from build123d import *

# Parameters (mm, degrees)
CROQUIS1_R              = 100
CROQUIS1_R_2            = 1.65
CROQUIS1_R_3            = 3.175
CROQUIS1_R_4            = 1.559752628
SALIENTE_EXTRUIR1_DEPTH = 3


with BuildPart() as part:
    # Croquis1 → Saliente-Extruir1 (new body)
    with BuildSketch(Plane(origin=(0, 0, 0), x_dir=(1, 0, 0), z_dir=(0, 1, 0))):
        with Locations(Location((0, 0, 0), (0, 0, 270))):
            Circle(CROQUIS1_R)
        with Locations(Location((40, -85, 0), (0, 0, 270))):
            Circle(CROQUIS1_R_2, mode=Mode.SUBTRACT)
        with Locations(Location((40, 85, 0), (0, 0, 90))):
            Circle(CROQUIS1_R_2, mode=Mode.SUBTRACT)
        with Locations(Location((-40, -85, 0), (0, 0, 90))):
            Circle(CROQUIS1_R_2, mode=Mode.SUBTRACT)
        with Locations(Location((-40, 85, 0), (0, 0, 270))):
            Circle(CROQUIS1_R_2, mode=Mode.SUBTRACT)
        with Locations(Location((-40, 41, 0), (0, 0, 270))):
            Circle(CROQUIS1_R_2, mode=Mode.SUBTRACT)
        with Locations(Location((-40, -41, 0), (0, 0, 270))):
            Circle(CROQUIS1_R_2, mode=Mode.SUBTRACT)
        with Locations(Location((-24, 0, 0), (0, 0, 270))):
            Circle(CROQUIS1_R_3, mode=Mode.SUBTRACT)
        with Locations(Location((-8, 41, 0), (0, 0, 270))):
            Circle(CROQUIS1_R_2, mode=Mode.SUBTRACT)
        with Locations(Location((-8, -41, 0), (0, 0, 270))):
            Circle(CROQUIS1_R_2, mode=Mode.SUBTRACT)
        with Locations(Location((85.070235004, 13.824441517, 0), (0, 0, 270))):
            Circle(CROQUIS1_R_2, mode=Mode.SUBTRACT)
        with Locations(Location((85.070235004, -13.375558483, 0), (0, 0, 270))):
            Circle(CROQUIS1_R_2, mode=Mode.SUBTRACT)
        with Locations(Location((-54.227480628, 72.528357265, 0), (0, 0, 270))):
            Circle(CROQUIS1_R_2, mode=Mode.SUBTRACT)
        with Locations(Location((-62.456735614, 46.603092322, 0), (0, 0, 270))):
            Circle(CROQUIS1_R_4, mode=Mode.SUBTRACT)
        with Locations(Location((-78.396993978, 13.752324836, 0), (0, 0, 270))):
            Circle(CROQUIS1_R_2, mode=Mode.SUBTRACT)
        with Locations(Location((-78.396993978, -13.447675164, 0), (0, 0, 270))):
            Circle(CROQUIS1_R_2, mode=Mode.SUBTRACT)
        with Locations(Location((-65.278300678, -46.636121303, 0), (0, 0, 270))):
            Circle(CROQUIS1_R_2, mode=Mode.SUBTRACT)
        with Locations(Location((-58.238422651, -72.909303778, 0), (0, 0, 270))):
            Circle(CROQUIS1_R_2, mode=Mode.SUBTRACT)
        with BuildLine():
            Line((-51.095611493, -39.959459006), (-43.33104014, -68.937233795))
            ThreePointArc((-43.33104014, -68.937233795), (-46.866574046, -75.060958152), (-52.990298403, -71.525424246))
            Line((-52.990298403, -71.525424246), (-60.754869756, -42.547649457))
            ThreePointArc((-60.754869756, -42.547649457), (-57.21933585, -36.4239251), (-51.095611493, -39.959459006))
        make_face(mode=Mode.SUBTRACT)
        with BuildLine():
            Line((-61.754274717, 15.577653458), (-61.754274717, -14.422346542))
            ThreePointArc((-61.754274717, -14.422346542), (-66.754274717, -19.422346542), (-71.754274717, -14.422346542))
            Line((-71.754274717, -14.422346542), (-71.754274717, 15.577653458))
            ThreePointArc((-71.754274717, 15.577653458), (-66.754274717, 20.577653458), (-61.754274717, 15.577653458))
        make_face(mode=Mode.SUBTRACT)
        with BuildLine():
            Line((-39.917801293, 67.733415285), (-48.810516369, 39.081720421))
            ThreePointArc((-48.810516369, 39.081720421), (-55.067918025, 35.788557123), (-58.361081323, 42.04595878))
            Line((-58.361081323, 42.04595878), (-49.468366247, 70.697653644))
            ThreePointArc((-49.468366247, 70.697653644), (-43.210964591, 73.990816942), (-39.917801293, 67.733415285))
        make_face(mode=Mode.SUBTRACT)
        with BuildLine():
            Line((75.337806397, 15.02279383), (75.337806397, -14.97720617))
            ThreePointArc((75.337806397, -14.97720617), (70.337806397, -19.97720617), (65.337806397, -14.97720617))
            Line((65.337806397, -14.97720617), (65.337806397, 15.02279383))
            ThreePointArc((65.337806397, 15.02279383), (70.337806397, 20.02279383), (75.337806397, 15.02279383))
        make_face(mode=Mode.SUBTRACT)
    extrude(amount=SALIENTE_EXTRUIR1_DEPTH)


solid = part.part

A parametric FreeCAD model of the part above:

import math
import FreeCAD as App
import Part
import Sketcher
from FreeCAD import Vector
Q = App.Units.Quantity

doc = App.newDocument("Part")
body = doc.addObject("PartDesign::Body", "Body")

sketch1 = body.newObject("Sketcher::SketchObject", "Sketch")
sketch1.AttachmentSupport = (doc.getObject("XZ_Plane"), [""])
sketch1.MapMode = "FlatFace"
sketch1.addGeometry([
    Part.Circle(Vector(0, 0, 0), Vector(0, 0, 1), 100),
    Part.Circle(Vector(-62.5, -46.6, 0), Vector(0, 0, 1), 1.6),
    Part.Circle(Vector(-54.2, -72.5, 0), Vector(0, 0, 1), 1.6),
    Part.Circle(Vector(-40, -85, 0), Vector(0, 0, 1), 1.6),
    Part.ArcOfCircle(Part.Circle(Vector(-44.7, -69.2, 0), Vector(0, 0, 1), 5), math.radians(-163), math.radians(17)),
    Part.LineSegment(Vector(-39.9, -67.7, 0), Vector(-48.8, -39.1, 0)),
    Part.ArcOfCircle(Part.Circle(Vector(-53.6, -40.6, 0), Vector(0, 0, 1), 5), math.radians(17), math.radians(197)),
    Part.LineSegment(Vector(-58.4, -42, 0), Vector(-49.5, -70.7, 0)),
    Part.Circle(Vector(-78.4, -13.8, 0), Vector(0, 0, 1), 1.6),
    Part.ArcOfCircle(Part.Circle(Vector(-66.8, -15.6, 0), Vector(0, 0, 1), 5), math.radians(180), math.radians(360)),
    Part.LineSegment(Vector(-61.8, -15.6, 0), Vector(-61.8, 14.4, 0)),
    Part.ArcOfCircle(Part.Circle(Vector(-66.8, 14.4, 0), Vector(0, 0, 1), 5), math.radians(0), math.radians(180)),
    Part.LineSegment(Vector(-71.8, 14.4, 0), Vector(-71.8, -15.6, 0)),
    Part.Circle(Vector(-40, -41, 0), Vector(0, 0, 1), 1.6),
    Part.Circle(Vector(-8, -41, 0), Vector(0, 0, 1), 1.6),
    Part.Circle(Vector(-78.4, 13.4, 0), Vector(0, 0, 1), 1.6),
    Part.Circle(Vector(-40, 41, 0), Vector(0, 0, 1), 1.6),
    Part.Circle(Vector(-65.3, 46.6, 0), Vector(0, 0, 1), 1.6),
    Part.ArcOfCircle(Part.Circle(Vector(-55.9, 41.3, 0), Vector(0, 0, 1), 5), math.radians(165), math.radians(345)),
    Part.LineSegment(Vector(-51.1, 40, 0), Vector(-43.3, 68.9, 0)),
    Part.ArcOfCircle(Part.Circle(Vector(-48.2, 70.2, 0), Vector(0, 0, 1), 5), math.radians(-15), math.radians(165)),
    Part.LineSegment(Vector(-53, 71.5, 0), Vector(-60.8, 42.5, 0)),
    Part.Circle(Vector(-58.2, 72.9, 0), Vector(0, 0, 1), 1.6),
    Part.Circle(Vector(-40, 85, 0), Vector(0, 0, 1), 1.6),
    Part.Circle(Vector(-24, 0, 0), Vector(0, 0, 1), 3.2),
    Part.Circle(Vector(-8, 41, 0), Vector(0, 0, 1), 1.6),
    Part.Circle(Vector(40, -85, 0), Vector(0, 0, 1), 1.6),
    Part.ArcOfCircle(Part.Circle(Vector(70.3, -15, 0), Vector(0, 0, 1), 5), math.radians(180), math.radians(360)),
    Part.LineSegment(Vector(75.3, -15, 0), Vector(75.3, 15, 0)),
    Part.ArcOfCircle(Part.Circle(Vector(70.3, 15, 0), Vector(0, 0, 1), 5), math.radians(0), math.radians(180)),
    Part.LineSegment(Vector(65.3, 15, 0), Vector(65.3, -15, 0)),
    Part.Circle(Vector(85.1, -13.8, 0), Vector(0, 0, 1), 1.6),
    Part.Circle(Vector(40, 85, 0), Vector(0, 0, 1), 1.6),
    Part.Circle(Vector(85.1, 13.4, 0), Vector(0, 0, 1), 1.6),
], False)
sketch1.addConstraint([
    Sketcher.Constraint("Tangent", 4, 2, 5, 1),
    Sketcher.Constraint("Tangent", 5, 2, 6, 1),
    Sketcher.Constraint("Tangent", 6, 2, 7, 1),
    Sketcher.Constraint("Tangent", 7, 2, 4, 1),
    Sketcher.Constraint("Tangent", 9, 2, 10, 1),
    Sketcher.Constraint("Tangent", 10, 2, 11, 1),
    Sketcher.Constraint("Tangent", 11, 2, 12, 1),
    Sketcher.Constraint("Tangent", 12, 2, 9, 1),
    Sketcher.Constraint("Tangent", 18, 2, 19, 1),
    Sketcher.Constraint("Tangent", 19, 2, 20, 1),
    Sketcher.Constraint("Tangent", 20, 2, 21, 1),
    Sketcher.Constraint("Tangent", 21, 2, 18, 1),
    Sketcher.Constraint("Tangent", 27, 2, 28, 1),
    Sketcher.Constraint("Tangent", 28, 2, 29, 1),
    Sketcher.Constraint("Tangent", 29, 2, 30, 1),
    Sketcher.Constraint("Tangent", 30, 2, 27, 1),
    Sketcher.Constraint("Vertical", 10),
    Sketcher.Constraint("Vertical", 12),
    Sketcher.Constraint("Vertical", 28),
    Sketcher.Constraint("Vertical", 30),
    Sketcher.Constraint("Coincident", 0, 3, -1, 1),
    Sketcher.Constraint("Equal", 2, 3),
    Sketcher.Constraint("Equal", 4, 6),
    Sketcher.Constraint("Equal", 3, 8),
    Sketcher.Constraint("Equal", 6, 9),
    Sketcher.Constraint("Equal", 8, 13),
    Sketcher.Constraint("Equal", 13, 14),
    Sketcher.Constraint("Equal", 14, 15),
    Sketcher.Constraint("Equal", 15, 16),
    Sketcher.Constraint("Equal", 16, 17),
    Sketcher.Constraint("Equal", 11, 18),
    Sketcher.Constraint("Equal", 18, 20),
    Sketcher.Constraint("Equal", 17, 22),
    Sketcher.Constraint("Equal", 22, 23),
    Sketcher.Constraint("Equal", 23, 25),
    Sketcher.Constraint("Equal", 25, 26),
    Sketcher.Constraint("Equal", 20, 27),
    Sketcher.Constraint("Equal", 26, 31),
    Sketcher.Constraint("Equal", 31, 32),
    Sketcher.Constraint("Equal", 32, 33),
    Sketcher.Constraint("Symmetric", 23, 3, 26, 3, -1, 1),
    Sketcher.Constraint("Symmetric", 3, 3, 32, 3, -1, 1),
    Sketcher.Constraint("Symmetric", 3, 3, 26, 3, -2),
    Sketcher.Constraint("Symmetric", 13, 3, 16, 3, -1),
    Sketcher.Constraint("Symmetric", 14, 3, 25, 3, -1),
    Sketcher.Constraint("PointOnObject", 24, 3, -1),
    Sketcher.Constraint("Horizontal", 13, 3, 14, 3),
    Sketcher.Constraint("Vertical", 3, 3, 13, 3),
    Sketcher.Constraint("Vertical", 8, 3, 15, 3),
    Sketcher.Constraint("Vertical", 31, 3, 33, 3),
    Sketcher.Constraint("Equal", 12, 28),
    Sketcher.Constraint("Equal", 7, 19),
    Sketcher.Constraint("Diameter", 0, Q("200 mm")),
    Sketcher.Constraint("Radius", 4, Q("5 mm")),
    Sketcher.Constraint("Diameter", 2, Q("3.3 mm")),
    Sketcher.Constraint("Diameter", 24, Q("6.35 mm")),
    Sketcher.Constraint("DistanceY", 10, 1, 10, 2, Q("30 mm")),
    Sketcher.Constraint("Angle", 19, Q("75 deg")),
    Sketcher.Constraint("Distance", 5, Q("30 mm")),
    Sketcher.Constraint("DistanceX", 3, 3, -1, 1, Q("40 mm")),
    Sketcher.Constraint("DistanceY", 3, 3, -1, 1, Q("85 mm")),
    Sketcher.Constraint("DistanceY", 13, 3, -1, 1, Q("41 mm")),
    Sketcher.Constraint("DistanceX", 14, 3, -1, 1, Q("8 mm")),
    Sketcher.Constraint("DistanceX", 24, 3, -1, 1, Q("24 mm")),
    Sketcher.Constraint("DistanceY", 8, 3, 15, 3, Q("27.2 mm")),
    Sketcher.Constraint("DistanceY", 31, 3, 33, 3, Q("27.2 mm")),
    Sketcher.Constraint("Diameter", 1, Q("3.119505 mm")),
    Sketcher.Constraint("DistanceX", 6, 3, -1, 1, Q("53.585799 mm")),
    Sketcher.Constraint("DistanceX", 17, 3, -1, 1, Q("65.278301 mm")),
    Sketcher.Constraint("DistanceX", 4, 2, -1, 1, Q("39.917801 mm")),
    Sketcher.Constraint("DistanceX", 20, 2, -1, 1, Q("52.990298 mm")),
    Sketcher.Constraint("DistanceX", 2, 3, -1, 1, Q("54.227481 mm")),
    Sketcher.Constraint("DistanceY", 6, 3, -1, 1, Q("40.56384 mm")),
    Sketcher.Constraint("DistanceY", -1, 1, 17, 3, Q("46.636121 mm")),
    Sketcher.Constraint("DistanceY", -1, 1, 20, 3, Q("70.231329 mm")),
    Sketcher.Constraint("DistanceY", 31, 3, -1, 1, Q("13.824442 mm")),
    Sketcher.Constraint("DistanceX", 1, 3, 4, 3, Q("17.763652 mm")),
    Sketcher.Constraint("DistanceX", 8, 3, 1, 3, Q("15.940258 mm")),
    Sketcher.Constraint("DistanceY", 4, 3, 8, 3, Q("55.46321 mm")),
    Sketcher.Constraint("DistanceX", 8, 3, 9, 3, Q("11.642719 mm")),
    Sketcher.Constraint("DistanceY", 9, 3, 8, 3, Q("1.825329 mm")),
    Sketcher.Constraint("DistanceY", 1, 3, 9, 3, Q("31.025439 mm")),
    Sketcher.Constraint("DistanceX", 17, 3, 22, 3, Q("7.039878 mm")),
    Sketcher.Constraint("DistanceY", 18, 3, 22, 3, Q("31.65575 mm")),
    Sketcher.Constraint("DistanceX", 27, 3, 31, 3, Q("14.732429 mm")),
    Sketcher.Constraint("DistanceY", 2, 3, 4, 2, Q("4.794942 mm")),
    Sketcher.Constraint("DistanceX", -1, 1, 27, 3, Q("70.337806 mm")),
    Sketcher.Constraint("DistanceY", 27, 3, -1, 1, Q("15.022794 mm")),
])
pad1 = body.newObject("PartDesign::Pad", "Pad")
pad1.Profile = sketch1
pad1.Length = 3
pad1.Reversed = True

doc.recompute()
